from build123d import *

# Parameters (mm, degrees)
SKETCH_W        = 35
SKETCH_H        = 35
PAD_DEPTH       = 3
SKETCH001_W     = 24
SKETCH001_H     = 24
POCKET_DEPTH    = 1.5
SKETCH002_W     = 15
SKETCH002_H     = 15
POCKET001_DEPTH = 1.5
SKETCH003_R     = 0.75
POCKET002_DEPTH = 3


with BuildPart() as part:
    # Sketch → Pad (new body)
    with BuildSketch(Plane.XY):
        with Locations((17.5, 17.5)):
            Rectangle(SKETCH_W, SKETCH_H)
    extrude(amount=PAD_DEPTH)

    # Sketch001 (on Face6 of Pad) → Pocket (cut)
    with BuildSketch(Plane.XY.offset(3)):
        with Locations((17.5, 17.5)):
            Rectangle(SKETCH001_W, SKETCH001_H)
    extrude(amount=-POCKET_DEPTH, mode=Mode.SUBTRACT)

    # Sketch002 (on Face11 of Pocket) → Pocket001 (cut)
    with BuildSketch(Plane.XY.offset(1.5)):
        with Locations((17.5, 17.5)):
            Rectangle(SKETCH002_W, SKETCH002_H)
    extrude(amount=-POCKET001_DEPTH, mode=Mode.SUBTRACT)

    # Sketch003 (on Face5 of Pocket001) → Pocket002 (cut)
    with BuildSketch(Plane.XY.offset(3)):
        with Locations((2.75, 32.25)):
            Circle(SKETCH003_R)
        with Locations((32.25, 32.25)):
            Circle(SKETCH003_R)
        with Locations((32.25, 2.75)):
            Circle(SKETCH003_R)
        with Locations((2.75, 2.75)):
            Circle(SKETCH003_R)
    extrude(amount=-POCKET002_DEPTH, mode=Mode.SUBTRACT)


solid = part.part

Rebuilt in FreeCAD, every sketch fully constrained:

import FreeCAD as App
import Part
import Sketcher


def add_polygon(sketch, points):
    """Adds a closed chain of lines whose ends are joined by coincident constraints."""
    first, n = sketch.GeometryCount, len(points)
    for a, b in zip(points, points[1:] + points[:1]):
        sketch.addGeometry(Part.LineSegment(App.Vector(*a, 0), App.Vector(*b, 0)), False)
    for i in range(n):
        sketch.addConstraint(Sketcher.Constraint("Coincident", first + i, 2, first + (i + 1) % n, 1))

doc = App.newDocument("Part")
body = doc.addObject("PartDesign::Body", "Body")

# Sketch on XY plane
sketch1 = doc.addObject("Sketcher::SketchObject", "Sketch")
body.addObject(sketch1)
sketch1.AttachmentSupport = (doc.XY_Plane, [""])
sketch1.MapMode = "FlatFace"
add_polygon(sketch1, [(0, 35), (0, 0), (35, 0), (35, 35)])  # lines 0-3
sketch1.addConstraint([
    Sketcher.Constraint("Vertical", 0),
    Sketcher.Constraint("Horizontal", 1),
    Sketcher.Constraint("Vertical", 2),
    Sketcher.Constraint("Horizontal", 3),
    Sketcher.Constraint("Coincident", 0, 2, -1, 1),
    Sketcher.Constraint("Equal", 3, 0),
    Sketcher.Constraint("DistanceX", 1, 1, 1, 2, 35.0),
])
pad1 = doc.addObject("PartDesign::Pad", "Pad")
body.addObject(pad1)
pad1.Profile = sketch1
pad1.Length = 3

# Sketch on XY plane
sketch2 = doc.addObject("Sketcher::SketchObject", "Sketch001")
body.addObject(sketch2)
sketch2.AttachmentSupport = (doc.XY_Plane, [""])
sketch2.MapMode = "FlatFace"
sketch2.AttachmentOffset = App.Placement(App.Vector(0, 0, 3), App.Rotation())
add_polygon(sketch2, [(6, 30), (6, 6), (30, 6), (30, 30)])  # lines 0-3
sketch2.addConstraint([
    Sketcher.Constraint("Vertical", 0),
    Sketcher.Constraint("Horizontal", 1),
    Sketcher.Constraint("Vertical", 2),
    Sketcher.Constraint("Horizontal", 3),
    Sketcher.Constraint("Equal", 3, 0),
    Sketcher.Constraint("DistanceX", 1, 1, 1, 2, 24.0),
    Sketcher.Constraint("DistanceX", -1, 1, 0, 2, 5.5),
    Sketcher.Constraint("DistanceY", -1, 1, 0, 2, 5.5),
])
pocket1 = doc.addObject("PartDesign::Pocket", "Pocket")
body.addObject(pocket1)
pocket1.Profile = sketch2
pocket1.Length = 1.5

# Sketch on XY plane
sketch3 = doc.addObject("Sketcher::SketchObject", "Sketch002")
body.addObject(sketch3)
sketch3.AttachmentSupport = (doc.XY_Plane, [""])
sketch3.MapMode = "FlatFace"
sketch3.AttachmentOffset = App.Placement(App.Vector(0, 0, 1.5), App.Rotation())
add_polygon(sketch3, [(10, 25), (10, 10), (25, 10), (25, 25)])  # lines 0-3
sketch3.addConstraint([
    Sketcher.Constraint("Vertical", 0),
    Sketcher.Constraint("Horizontal", 1),
    Sketcher.Constraint("Vertical", 2),
    Sketcher.Constraint("Horizontal", 3),
    Sketcher.Constraint("Equal", 3, 0),
    Sketcher.Constraint("DistanceX", 1, 1, 1, 2, 15.0),
    Sketcher.Constraint("DistanceX", -1, 1, 0, 2, 10.0),
    Sketcher.Constraint("DistanceY", -1, 1, 0, 2, 10.0),
])
pocket2 = doc.addObject("PartDesign::Pocket", "Pocket001")
body.addObject(pocket2)
pocket2.Profile = sketch3
pocket2.Length = 1.5

# Sketch on XY plane
sketch4 = doc.addObject("Sketcher::SketchObject", "Sketch003")
body.addObject(sketch4)
sketch4.AttachmentSupport = (doc.XY_Plane, [""])
sketch4.MapMode = "FlatFace"
sketch4.AttachmentOffset = App.Placement(App.Vector(0, 0, 3), App.Rotation())
sketch4.addGeometry([
    Part.Circle(App.Vector(2.8, 32.2, 0), App.Vector(0, 0, 1), 0.8),
    Part.Circle(App.Vector(32.2, 32.2, 0), App.Vector(0, 0, 1), 0.8),
    Part.Circle(App.Vector(32.2, 2.8, 0), App.Vector(0, 0, 1), 0.8),
    Part.Circle(App.Vector(2.8, 2.8, 0), App.Vector(0, 0, 1), 0.8),
], False)
sketch4.addConstraint([
    Sketcher.Constraint("Equal", 0, 1),
    Sketcher.Constraint("Equal", 1, 2),
    Sketcher.Constraint("Equal", 2, 3),
    Sketcher.Constraint("Horizontal", 0, 3, 1, 3),
    Sketcher.Constraint("Horizontal", 2, 3, 3, 3),
    Sketcher.Constraint("Vertical", 1, 3, 2, 3),
    Sketcher.Constraint("Vertical", 0, 3, 3, 3),
    Sketcher.Constraint("Diameter", 0, 1.5),
    Sketcher.Constraint("DistanceX", 0, 3, 1, 3, 29.5),
    Sketcher.Constraint("DistanceY", 2, 3, 1, 3, 29.5),
    Sketcher.Constraint("DistanceX", -1, 1, 0, 3, 2.75),
    Sketcher.Constraint("DistanceY", -1, 1, 0, 3, 32.25),
])
pocket3 = doc.addObject("PartDesign::Pocket", "Pocket002")
body.addObject(pocket3)
pocket3.Profile = sketch4
pocket3.Length = 3

doc.recompute()
